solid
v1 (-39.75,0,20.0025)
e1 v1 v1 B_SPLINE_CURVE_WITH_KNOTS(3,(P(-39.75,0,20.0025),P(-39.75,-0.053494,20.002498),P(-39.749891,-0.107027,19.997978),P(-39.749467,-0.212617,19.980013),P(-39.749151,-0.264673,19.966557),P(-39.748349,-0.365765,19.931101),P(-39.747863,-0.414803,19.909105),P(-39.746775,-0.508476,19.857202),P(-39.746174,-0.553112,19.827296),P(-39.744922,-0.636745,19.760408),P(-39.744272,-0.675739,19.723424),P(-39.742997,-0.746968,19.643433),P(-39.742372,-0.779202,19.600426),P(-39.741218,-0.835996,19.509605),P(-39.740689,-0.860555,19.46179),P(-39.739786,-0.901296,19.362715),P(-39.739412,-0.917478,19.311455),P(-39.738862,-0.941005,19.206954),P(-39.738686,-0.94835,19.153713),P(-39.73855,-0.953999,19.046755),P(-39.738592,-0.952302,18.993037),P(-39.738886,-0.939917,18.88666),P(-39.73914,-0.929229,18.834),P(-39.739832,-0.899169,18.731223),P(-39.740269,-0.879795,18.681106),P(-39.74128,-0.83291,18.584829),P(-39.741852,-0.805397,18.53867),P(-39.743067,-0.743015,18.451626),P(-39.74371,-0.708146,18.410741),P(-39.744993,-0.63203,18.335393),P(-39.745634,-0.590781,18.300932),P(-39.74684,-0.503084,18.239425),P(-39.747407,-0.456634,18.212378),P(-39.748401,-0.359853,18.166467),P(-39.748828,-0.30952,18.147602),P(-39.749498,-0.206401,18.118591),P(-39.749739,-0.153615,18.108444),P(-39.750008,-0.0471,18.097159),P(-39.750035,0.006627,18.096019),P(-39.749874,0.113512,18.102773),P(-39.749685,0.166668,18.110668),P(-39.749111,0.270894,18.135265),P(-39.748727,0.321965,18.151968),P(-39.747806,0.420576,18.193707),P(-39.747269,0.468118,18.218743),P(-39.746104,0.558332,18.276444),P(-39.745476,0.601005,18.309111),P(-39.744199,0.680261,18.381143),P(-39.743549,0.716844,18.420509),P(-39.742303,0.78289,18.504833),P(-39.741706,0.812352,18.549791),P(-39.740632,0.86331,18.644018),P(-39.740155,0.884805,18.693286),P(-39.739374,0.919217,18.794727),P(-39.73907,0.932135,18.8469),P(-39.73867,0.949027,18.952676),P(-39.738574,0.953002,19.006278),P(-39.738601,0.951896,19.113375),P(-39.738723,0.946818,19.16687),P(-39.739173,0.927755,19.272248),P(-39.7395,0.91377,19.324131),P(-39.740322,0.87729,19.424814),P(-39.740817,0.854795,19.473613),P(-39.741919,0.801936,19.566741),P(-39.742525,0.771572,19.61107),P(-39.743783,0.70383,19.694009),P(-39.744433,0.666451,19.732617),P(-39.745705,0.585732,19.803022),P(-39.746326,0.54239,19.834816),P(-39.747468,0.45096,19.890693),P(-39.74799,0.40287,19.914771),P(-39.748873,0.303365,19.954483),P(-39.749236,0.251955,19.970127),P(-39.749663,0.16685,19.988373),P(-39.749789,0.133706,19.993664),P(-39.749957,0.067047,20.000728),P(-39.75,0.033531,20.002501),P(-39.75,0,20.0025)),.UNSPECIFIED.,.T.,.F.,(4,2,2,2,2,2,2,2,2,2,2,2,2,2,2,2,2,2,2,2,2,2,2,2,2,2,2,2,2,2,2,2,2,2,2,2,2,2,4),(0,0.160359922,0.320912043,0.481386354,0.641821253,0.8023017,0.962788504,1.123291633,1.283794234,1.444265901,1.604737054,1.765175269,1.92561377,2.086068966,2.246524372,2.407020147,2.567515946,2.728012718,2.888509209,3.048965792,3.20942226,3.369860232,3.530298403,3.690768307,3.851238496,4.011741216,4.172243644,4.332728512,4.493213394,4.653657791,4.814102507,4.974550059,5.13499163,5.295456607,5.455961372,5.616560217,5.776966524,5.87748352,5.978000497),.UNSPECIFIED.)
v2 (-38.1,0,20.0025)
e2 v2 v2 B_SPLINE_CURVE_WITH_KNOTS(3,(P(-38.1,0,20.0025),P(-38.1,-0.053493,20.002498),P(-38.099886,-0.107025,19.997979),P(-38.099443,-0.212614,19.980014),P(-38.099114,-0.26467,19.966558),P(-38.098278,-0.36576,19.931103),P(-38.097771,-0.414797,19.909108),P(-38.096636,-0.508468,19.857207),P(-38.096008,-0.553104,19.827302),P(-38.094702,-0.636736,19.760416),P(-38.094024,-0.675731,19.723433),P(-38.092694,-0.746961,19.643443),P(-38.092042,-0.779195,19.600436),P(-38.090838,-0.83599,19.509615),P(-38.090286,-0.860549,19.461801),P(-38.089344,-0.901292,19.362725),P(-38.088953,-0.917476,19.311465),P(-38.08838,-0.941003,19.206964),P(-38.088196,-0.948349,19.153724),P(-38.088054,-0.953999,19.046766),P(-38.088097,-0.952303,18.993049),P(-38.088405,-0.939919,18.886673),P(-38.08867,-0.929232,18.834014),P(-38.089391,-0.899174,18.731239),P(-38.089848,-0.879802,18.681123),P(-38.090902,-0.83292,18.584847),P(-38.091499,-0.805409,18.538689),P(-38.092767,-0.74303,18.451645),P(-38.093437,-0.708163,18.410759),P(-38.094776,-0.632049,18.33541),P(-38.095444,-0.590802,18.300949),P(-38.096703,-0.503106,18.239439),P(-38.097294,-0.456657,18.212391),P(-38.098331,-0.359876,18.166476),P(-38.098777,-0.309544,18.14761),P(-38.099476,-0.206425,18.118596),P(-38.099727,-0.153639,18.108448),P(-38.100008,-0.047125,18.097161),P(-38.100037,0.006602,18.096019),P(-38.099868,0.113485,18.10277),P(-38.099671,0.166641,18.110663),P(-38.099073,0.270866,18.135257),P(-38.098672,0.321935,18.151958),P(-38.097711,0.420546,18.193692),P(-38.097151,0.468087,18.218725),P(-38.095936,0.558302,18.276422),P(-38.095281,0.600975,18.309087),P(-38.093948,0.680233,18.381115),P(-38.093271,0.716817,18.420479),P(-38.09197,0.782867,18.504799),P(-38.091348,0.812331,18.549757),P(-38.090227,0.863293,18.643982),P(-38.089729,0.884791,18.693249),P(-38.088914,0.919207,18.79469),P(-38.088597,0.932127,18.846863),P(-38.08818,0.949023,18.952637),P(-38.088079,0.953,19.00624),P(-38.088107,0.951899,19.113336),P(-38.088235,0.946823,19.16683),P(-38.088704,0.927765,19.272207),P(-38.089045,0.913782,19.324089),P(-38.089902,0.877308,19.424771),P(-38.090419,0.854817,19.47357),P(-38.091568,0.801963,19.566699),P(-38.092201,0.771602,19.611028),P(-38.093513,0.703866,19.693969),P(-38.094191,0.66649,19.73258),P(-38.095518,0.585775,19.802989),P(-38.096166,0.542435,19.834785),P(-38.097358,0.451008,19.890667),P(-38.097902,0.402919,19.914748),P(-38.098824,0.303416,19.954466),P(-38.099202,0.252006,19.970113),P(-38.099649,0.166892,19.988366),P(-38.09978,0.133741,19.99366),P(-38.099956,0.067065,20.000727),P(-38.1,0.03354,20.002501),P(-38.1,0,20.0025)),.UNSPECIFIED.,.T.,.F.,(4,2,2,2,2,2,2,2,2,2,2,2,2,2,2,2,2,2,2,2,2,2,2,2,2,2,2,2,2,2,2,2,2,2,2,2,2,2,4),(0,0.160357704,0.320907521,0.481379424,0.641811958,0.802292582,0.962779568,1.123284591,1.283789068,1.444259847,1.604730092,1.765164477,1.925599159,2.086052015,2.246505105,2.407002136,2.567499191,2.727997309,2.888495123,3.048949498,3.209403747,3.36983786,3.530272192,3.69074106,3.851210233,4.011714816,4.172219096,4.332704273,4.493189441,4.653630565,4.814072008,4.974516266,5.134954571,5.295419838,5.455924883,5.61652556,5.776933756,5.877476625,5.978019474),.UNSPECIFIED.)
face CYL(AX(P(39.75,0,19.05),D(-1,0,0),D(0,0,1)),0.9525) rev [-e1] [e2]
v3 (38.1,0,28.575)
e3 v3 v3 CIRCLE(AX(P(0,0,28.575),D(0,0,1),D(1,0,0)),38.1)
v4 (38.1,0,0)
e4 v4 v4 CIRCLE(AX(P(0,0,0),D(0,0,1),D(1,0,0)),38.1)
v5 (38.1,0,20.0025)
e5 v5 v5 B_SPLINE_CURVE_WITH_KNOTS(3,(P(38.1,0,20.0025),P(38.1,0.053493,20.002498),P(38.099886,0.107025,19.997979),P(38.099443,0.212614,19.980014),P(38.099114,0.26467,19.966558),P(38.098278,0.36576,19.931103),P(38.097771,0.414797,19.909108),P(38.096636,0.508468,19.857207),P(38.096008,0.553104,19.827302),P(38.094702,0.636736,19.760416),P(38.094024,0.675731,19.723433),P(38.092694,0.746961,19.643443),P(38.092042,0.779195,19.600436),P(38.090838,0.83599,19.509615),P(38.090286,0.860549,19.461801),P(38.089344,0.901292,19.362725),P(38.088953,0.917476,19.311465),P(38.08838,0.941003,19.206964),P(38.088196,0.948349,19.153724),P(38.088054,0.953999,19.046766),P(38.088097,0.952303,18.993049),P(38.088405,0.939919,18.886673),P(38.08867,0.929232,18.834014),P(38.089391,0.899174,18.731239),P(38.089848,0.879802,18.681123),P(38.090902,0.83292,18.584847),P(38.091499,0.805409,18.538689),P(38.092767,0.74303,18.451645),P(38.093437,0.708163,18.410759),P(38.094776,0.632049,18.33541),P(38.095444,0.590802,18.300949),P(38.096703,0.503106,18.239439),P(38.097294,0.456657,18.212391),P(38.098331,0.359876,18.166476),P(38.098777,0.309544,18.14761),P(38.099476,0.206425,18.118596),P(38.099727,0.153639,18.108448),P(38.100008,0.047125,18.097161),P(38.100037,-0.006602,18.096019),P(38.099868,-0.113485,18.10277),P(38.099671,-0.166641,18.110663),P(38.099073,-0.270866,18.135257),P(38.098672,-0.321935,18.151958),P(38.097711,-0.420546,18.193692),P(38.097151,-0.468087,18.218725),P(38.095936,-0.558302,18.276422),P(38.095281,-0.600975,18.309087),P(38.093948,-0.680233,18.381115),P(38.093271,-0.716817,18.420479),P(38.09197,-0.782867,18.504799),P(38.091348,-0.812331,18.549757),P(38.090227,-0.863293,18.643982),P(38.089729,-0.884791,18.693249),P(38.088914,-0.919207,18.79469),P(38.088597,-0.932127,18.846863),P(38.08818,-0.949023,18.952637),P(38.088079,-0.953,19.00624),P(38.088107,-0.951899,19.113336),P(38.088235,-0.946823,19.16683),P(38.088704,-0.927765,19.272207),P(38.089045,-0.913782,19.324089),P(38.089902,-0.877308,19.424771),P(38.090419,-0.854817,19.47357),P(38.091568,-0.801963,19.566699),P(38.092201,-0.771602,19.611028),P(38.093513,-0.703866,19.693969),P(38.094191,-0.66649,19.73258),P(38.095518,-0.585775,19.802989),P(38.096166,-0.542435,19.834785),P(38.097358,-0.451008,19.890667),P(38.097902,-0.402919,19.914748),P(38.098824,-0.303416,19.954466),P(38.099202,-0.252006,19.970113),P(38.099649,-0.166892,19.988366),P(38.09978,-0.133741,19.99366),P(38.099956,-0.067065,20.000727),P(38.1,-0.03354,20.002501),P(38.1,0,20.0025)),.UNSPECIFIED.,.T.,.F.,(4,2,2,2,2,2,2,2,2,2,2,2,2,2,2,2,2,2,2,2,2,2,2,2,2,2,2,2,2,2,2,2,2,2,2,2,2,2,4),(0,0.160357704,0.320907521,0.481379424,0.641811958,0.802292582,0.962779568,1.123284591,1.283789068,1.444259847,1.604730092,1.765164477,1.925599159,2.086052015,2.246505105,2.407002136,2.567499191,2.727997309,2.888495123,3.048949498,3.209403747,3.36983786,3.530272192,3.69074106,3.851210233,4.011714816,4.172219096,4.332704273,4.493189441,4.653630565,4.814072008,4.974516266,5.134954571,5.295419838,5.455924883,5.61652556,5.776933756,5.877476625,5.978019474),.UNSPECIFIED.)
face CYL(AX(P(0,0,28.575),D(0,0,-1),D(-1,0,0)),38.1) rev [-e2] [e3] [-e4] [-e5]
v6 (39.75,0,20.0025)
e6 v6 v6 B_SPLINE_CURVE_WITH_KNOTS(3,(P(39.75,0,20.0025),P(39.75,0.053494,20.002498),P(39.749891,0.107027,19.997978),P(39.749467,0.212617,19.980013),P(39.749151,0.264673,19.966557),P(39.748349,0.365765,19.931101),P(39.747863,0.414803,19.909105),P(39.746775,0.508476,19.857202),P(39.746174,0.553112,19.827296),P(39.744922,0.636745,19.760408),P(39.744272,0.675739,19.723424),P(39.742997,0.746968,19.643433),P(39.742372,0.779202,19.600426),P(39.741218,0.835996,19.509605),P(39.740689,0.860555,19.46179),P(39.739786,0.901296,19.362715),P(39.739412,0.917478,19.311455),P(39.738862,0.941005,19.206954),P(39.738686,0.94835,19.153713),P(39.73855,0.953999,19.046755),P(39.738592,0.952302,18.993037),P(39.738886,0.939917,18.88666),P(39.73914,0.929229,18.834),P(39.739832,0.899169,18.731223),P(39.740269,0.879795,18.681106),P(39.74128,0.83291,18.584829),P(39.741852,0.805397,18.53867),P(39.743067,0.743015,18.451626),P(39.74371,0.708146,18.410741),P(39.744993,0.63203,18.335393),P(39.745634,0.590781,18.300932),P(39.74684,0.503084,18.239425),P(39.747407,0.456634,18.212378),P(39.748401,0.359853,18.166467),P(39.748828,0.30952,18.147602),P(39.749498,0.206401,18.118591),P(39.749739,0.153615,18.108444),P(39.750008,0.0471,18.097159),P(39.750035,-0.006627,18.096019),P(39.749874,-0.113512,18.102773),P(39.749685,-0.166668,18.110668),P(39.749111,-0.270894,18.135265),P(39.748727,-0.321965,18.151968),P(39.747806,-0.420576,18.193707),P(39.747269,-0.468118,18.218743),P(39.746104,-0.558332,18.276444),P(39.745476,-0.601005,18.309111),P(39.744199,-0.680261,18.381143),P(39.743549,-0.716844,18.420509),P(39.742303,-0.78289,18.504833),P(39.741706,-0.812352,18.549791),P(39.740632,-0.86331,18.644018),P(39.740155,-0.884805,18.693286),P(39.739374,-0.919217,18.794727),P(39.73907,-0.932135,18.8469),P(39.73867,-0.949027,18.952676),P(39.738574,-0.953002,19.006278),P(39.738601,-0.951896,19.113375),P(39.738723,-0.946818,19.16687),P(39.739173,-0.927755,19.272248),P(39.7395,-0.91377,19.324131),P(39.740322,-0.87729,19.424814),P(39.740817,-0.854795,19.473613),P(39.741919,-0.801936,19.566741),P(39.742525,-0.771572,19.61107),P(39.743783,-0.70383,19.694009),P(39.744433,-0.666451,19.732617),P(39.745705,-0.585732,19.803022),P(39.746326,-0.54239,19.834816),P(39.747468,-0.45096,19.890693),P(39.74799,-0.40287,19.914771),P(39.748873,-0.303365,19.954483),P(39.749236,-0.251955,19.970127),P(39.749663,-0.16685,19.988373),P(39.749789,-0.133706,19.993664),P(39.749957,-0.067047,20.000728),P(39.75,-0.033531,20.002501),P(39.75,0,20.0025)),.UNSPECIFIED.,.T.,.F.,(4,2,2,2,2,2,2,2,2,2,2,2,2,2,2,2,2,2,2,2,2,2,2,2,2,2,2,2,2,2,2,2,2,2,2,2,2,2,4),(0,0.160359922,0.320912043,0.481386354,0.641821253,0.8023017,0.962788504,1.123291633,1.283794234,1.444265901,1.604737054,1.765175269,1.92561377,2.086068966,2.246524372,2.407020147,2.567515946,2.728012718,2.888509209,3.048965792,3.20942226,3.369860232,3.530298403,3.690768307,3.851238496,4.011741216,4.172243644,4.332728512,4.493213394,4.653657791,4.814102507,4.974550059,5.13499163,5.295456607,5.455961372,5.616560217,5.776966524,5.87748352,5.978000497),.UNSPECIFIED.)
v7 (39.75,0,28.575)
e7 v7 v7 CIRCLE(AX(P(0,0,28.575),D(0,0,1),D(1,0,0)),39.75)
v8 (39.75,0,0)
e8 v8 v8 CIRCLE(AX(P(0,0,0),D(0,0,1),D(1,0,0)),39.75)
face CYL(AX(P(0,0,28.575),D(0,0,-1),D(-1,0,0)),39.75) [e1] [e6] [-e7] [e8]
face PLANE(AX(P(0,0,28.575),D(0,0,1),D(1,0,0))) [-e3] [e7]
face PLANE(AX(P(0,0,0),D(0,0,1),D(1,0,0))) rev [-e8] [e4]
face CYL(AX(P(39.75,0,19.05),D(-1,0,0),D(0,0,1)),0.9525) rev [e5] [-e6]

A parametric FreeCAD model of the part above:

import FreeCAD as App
import Part
import Sketcher

V = App.Vector
Q = App.Units.Quantity

doc = App.newDocument("Part")
body = doc.addObject("PartDesign::Body", "Body")

# Sketch on XY plane
sketch1 = doc.addObject("Sketcher::SketchObject", "Sketch")
body.addObject(sketch1)
sketch1.AttachmentSupport = (doc.XY_Plane, [""])
sketch1.MapMode = "FlatFace"
sketch1.addGeometry(Part.Circle(V(0, 0, 0), V(0, 0, 1), 40), False)
sketch1.addGeometry(Part.Circle(V(0, 0, 0), V(0, 0, 1), 38), False)
sketch1.addConstraint(Sketcher.Constraint("Coincident", 0, 3, -1, 1))
sketch1.addConstraint(Sketcher.Constraint("Coincident", 1, 3, -1, 1))
sketch1.addConstraint(Sketcher.Constraint("Diameter", 1, Q("3 in")))
sketch1.addConstraint(Sketcher.Constraint("Diameter", 0, 79.5))
pad1 = doc.addObject("PartDesign::Pad", "Pad")
body.addObject(pad1)
pad1.Profile = sketch1
pad1.Length = Q("1.125 in")

# Sketch on YZ plane
sketch2 = doc.addObject("Sketcher::SketchObject", "Sketch001")
body.addObject(sketch2)
sketch2.AttachmentSupport = (doc.YZ_Plane, [""])
sketch2.MapMode = "FlatFace"
sketch2.AttachmentOffset = App.Placement(V(0, 0, -39.75), App.Rotation())
sketch2.addGeometry(Part.Circle(V(0, 19.1, 0), V(0, 0, 1), 1), False)
sketch2.addConstraint(Sketcher.Constraint("PointOnObject", 0, 3, -2))
sketch2.addConstraint(Sketcher.Constraint("Diameter", 0, Q("0.075 in")))
sketch2.addConstraint(Sketcher.Constraint("DistanceY", -1, 1, 0, 3, Q("0.75 in")))
pocket1 = doc.addObject("PartDesign::Pocket", "Pocket")
body.addObject(pocket1)
pocket1.Profile = sketch2
pocket1.Type = "ThroughAll"
pocket1.Reversed = True

doc.recompute()
